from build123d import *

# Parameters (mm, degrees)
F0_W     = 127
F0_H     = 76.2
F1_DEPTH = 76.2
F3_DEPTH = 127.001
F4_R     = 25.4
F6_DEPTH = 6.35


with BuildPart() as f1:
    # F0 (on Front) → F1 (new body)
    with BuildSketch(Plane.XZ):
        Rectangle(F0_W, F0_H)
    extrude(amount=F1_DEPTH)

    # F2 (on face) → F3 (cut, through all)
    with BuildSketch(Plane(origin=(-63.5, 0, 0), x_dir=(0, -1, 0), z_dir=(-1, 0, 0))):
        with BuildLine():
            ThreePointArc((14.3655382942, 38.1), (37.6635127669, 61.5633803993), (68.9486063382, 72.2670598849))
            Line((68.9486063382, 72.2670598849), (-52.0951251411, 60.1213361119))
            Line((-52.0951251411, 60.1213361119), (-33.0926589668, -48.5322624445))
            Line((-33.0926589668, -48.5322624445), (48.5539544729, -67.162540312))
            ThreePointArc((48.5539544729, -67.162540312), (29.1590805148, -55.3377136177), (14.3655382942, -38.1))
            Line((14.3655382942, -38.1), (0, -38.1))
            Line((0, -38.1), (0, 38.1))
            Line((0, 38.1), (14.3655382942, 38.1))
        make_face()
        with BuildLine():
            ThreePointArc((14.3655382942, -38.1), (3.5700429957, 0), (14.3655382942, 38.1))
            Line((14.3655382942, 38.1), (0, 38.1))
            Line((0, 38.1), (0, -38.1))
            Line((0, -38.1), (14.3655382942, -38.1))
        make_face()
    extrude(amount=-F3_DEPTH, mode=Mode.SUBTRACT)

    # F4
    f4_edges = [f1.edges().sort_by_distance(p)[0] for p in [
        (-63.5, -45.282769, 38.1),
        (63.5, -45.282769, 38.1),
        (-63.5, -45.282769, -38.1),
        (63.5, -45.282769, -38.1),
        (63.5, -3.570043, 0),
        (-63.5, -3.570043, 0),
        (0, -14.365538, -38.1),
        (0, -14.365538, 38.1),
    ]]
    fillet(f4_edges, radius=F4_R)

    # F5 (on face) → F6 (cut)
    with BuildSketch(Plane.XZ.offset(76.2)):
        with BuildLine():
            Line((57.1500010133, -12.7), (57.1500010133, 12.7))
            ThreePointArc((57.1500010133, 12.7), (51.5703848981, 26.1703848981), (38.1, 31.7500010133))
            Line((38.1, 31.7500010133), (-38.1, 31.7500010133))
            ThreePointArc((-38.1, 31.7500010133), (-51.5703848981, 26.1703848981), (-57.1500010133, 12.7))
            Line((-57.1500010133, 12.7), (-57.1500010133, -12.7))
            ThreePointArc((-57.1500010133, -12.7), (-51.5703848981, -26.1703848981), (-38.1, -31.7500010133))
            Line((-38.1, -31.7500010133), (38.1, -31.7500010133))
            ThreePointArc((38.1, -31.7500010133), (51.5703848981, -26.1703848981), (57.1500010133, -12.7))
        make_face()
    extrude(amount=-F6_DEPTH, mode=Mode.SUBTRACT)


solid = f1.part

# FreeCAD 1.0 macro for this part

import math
import FreeCAD as App
import Part
import Sketcher

V = App.Vector
Q = App.Units.Quantity


def edges_at(feature, points):
    """Names of the edges that pass closest to the given points."""
    edges = feature.Shape.Edges
    near = lambda p: min(range(len(edges)), key=lambda i: edges[i].distToShape(Part.Vertex(*p))[0])
    return sorted({f"Edge{near(p) + 1}" for p in points})


def add_polygon(sketch, points):
    """Adds a closed chain of lines whose ends are joined by coincident constraints."""
    first, n = sketch.GeometryCount, len(points)
    for a, b in zip(points, points[1:] + points[:1]):
        sketch.addGeometry(Part.LineSegment(App.Vector(*a, 0), App.Vector(*b, 0)), False)
    for i in range(n):
        sketch.addConstraint(Sketcher.Constraint("Coincident", first + i, 2, first + (i + 1) % n, 1))

doc = App.newDocument("Part")
body = doc.addObject("PartDesign::Body", "Body")

# Sketch on XZ plane
sketch1 = body.newObject("Sketcher::SketchObject", "Sketch")
sketch1.AttachmentSupport = (doc.getObject("XZ_Plane"), [""])
sketch1.MapMode = "FlatFace"
add_polygon(sketch1, [(-63.5, 38.1), (-63.5, -38.1), (63.5, -38.1), (63.5, 38.1)])  # lines 0-3
sketch1.addConstraint(Sketcher.Constraint("Vertical", 0))
sketch1.addConstraint(Sketcher.Constraint("Horizontal", 1))
sketch1.addConstraint(Sketcher.Constraint("Vertical", 2))
sketch1.addConstraint(Sketcher.Constraint("Horizontal", 3))
sketch1.addConstraint(Sketcher.Constraint("Symmetric", 0, 2, 2, 2, -1, 1))
sketch1.addConstraint(Sketcher.Constraint("DistanceX", 1, 1, 1, 2, Q("5 in")))
sketch1.addConstraint(Sketcher.Constraint("DistanceY", 0, 2, 0, 1, Q("3 in")))
pad1 = body.newObject("PartDesign::Pad", "Pad")
pad1.Profile = sketch1
pad1.Length = Q("3 in")

# Sketch on YZ plane
sketch2 = body.newObject("Sketcher::SketchObject", "Sketch001")
sketch2.AttachmentSupport = (doc.getObject("YZ_Plane"), [""])
sketch2.MapMode = "FlatFace"
sketch2.AttachmentOffset = App.Placement(V(0, 0, -2.5 * 25.4), App.Rotation())
sketch2.addGeometry(Part.ArcOfCircle(Part.Circle(V(-76.2, 0, 0), V(0, 0, 1), 72.629957), math.radians(31.639767), math.radians(84.270028)), False)
sketch2.addGeometry(Part.LineSegment(V(-68.948606, 72.26706, 0), V(52.095125, 60.121336, 0)), False)
sketch2.addGeometry(Part.LineSegment(V(52.095125, 60.121336, 0), V(33.092659, -48.532262, 0)), False)
sketch2.addGeometry(Part.LineSegment(V(33.092659, -48.532262, 0), V(-48.553954, -67.16254, 0)), False)
sketch2.addGeometry(Part.ArcOfCircle(Part.Circle(V(-76.2, 0, 0), V(0, 0, 1), 72.629957), math.radians(-67.626516), math.radians(31.639767)), False)
sketch2.addConstraint(Sketcher.Constraint("Tangent", 0, 2, 1, 1))
sketch2.addConstraint(Sketcher.Constraint("Coincident", 1, 2, 2, 1))
sketch2.addConstraint(Sketcher.Constraint("Coincident", 2, 2, 3, 1))
sketch2.addConstraint(Sketcher.Constraint("Coincident", 3, 2, 4, 1))
sketch2.addConstraint(Sketcher.Constraint("Tangent", 4, 2, 0, 1))
sketch2.addConstraint(Sketcher.Constraint("Equal", 0, 4))
sketch2.addConstraint(Sketcher.Constraint("PointOnObject", 0, 3, -1))
sketch2.addConstraint(Sketcher.Constraint("DistanceX", 0, 3, -1, 1, Q("3 in")))
sketch2.addConstraint(Sketcher.Constraint("DistanceY", -1, 1, 4, 2, Q("1.5 in")))
sketch2.addConstraint(Sketcher.Constraint("Radius", 0, Q("72.629957 mm")))
sketch2.addConstraint(Sketcher.Constraint("DistanceY", 2, 2, 1, 2, Q("108.653599 mm")))
sketch2.addConstraint(Sketcher.Constraint("DistanceY", 3, 2, 0, 2, Q("139.4296 mm")))
sketch2.addConstraint(Sketcher.Constraint("Distance", 3, Q("83.745189 mm")))
sketch2.addConstraint(Sketcher.Constraint("DistanceY", -1, 1, 0, 2, Q("72.26706 mm")))
sketch2.addConstraint(Sketcher.Constraint("DistanceX", -1, 1, 2, 2, Q("33.092659 mm")))
pocket1 = body.newObject("PartDesign::Pocket", "Pocket")
pocket1.Profile = sketch2
pocket1.Type = "ThroughAll"
pocket1.Reversed = True
doc.recompute()

fillet = body.newObject("PartDesign::Fillet", "Fillet")
fillet.Base = (pocket1, edges_at(pocket1, [
    (-63.5, -45.283, 38.1),
    (63.5, -45.283, 38.1),
    (-63.5, -45.283, -38.1),
    (63.5, -45.283, -38.1),
    (63.5, -3.57, 0),
    (-63.5, -3.57, 0),
    (0, -14.366, -38.1),
    (0, -14.366, 38.1),
]))
fillet.Radius = Q("1 in")

# Sketch on XZ plane
sketch3 = body.newObject("Sketcher::SketchObject", "Sketch002")
sketch3.AttachmentSupport = (doc.getObject("XZ_Plane"), [""])
sketch3.MapMode = "FlatFace"
sketch3.AttachmentOffset = App.Placement(V(0, 0, 3 * 25.4), App.Rotation())
sketch3.addGeometry(Part.LineSegment(V(57.150001, -12.7, 0), V(57.150001, 12.7, 0)), False)
sketch3.addGeometry(Part.ArcOfCircle(Part.Circle(V(38.1, 12.7, 0), V(0, 0, 1), 19.050001), math.radians(0), math.radians(90)), False)
sketch3.addGeometry(Part.LineSegment(V(38.1, 31.750001, 0), V(-38.1, 31.750001, 0)), False)
sketch3.addGeometry(Part.ArcOfCircle(Part.Circle(V(-38.1, 12.7, 0), V(0, 0, 1), 19.050001), math.radians(90), math.radians(180)), False)
sketch3.addGeometry(Part.LineSegment(V(-57.150001, 12.7, 0), V(-57.150001, -12.7, 0)), False)
sketch3.addGeometry(Part.ArcOfCircle(Part.Circle(V(-38.1, -12.7, 0), V(0, 0, 1), 19.050001), math.radians(180), math.radians(270)), False)
sketch3.addGeometry(Part.LineSegment(V(-38.1, -31.750001, 0), V(38.1, -31.750001, 0)), False)
sketch3.addGeometry(Part.ArcOfCircle(Part.Circle(V(38.1, -12.7, 0), V(0, 0, 1), 19.050001), math.radians(-90), math.radians(0)), False)
sketch3.addConstraint(Sketcher.Constraint("Tangent", 0, 2, 1, 1))
sketch3.addConstraint(Sketcher.Constraint("Tangent", 1, 2, 2, 1))
sketch3.addConstraint(Sketcher.Constraint("Tangent", 2, 2, 3, 1))
sketch3.addConstraint(Sketcher.Constraint("Tangent", 3, 2, 4, 1))
sketch3.addConstraint(Sketcher.Constraint("Tangent", 4, 2, 5, 1))
sketch3.addConstraint(Sketcher.Constraint("Tangent", 5, 2, 6, 1))
sketch3.addConstraint(Sketcher.Constraint("Tangent", 6, 2, 7, 1))
sketch3.addConstraint(Sketcher.Constraint("Tangent", 7, 2, 0, 1))
sketch3.addConstraint(Sketcher.Constraint("Vertical", 0))
sketch3.addConstraint(Sketcher.Constraint("Horizontal", 2))
sketch3.addConstraint(Sketcher.Constraint("Vertical", 4))
sketch3.addConstraint(Sketcher.Constraint("Horizontal", 6))
sketch3.addConstraint(Sketcher.Constraint("Equal", 1, 3))
sketch3.addConstraint(Sketcher.Constraint("Equal", 3, 5))
sketch3.addConstraint(Sketcher.Constraint("Equal", 5, 7))
sketch3.addConstraint(Sketcher.Constraint("Symmetric", 1, 3, 5, 3, -1, 1))
sketch3.addConstraint(Sketcher.Constraint("DistanceX", 2, 2, 2, 1, Q("3 in")))
sketch3.addConstraint(Sketcher.Constraint("DistanceY", 0, 1, 0, 2, Q("1 in")))
sketch3.addConstraint(Sketcher.Constraint("Radius", 1, Q("0.75 in")))
pocket2 = body.newObject("PartDesign::Pocket", "Pocket001")
pocket2.Profile = sketch3
pocket2.Length = Q("0.25 in")

doc.recompute()
